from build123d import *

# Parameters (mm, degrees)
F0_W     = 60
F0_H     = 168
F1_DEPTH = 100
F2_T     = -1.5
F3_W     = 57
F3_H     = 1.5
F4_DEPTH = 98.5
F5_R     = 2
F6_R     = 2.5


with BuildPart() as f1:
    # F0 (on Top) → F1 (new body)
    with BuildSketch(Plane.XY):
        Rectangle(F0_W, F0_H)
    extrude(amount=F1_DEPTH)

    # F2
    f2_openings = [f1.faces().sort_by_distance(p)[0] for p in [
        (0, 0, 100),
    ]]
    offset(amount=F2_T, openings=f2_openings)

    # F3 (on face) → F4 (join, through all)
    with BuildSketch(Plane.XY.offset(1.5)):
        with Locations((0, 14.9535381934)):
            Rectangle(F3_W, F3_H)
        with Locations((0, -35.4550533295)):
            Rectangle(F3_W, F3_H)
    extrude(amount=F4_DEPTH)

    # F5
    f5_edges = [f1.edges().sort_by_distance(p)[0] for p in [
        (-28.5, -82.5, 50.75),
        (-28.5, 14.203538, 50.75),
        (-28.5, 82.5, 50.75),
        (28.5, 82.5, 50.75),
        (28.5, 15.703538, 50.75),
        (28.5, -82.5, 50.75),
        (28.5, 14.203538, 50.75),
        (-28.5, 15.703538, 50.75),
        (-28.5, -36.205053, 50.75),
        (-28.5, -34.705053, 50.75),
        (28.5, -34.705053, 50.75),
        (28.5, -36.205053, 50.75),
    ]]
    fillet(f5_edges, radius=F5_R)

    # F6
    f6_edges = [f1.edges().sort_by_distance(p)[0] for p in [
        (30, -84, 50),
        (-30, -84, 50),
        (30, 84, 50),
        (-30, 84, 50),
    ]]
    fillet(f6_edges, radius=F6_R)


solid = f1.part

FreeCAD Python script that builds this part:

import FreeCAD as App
import Part
import Sketcher

V = App.Vector


def edges_at(feature, points):
    """Names of the edges that pass closest to the given points."""
    edges = feature.Shape.Edges
    near = lambda p: min(range(len(edges)), key=lambda i: edges[i].distToShape(Part.Vertex(*p))[0])
    return sorted({f"Edge{near(p) + 1}" for p in points})


def faces_at(feature, points):
    """Names of the faces that lie closest to the given points."""
    faces = feature.Shape.Faces
    near = lambda p: min(range(len(faces)), key=lambda i: faces[i].distToShape(Part.Vertex(*p))[0])
    return sorted({f"Face{near(p) + 1}" for p in points})


def add_polygon(sketch, points):
    """Adds a closed chain of lines whose ends are joined by coincident constraints."""
    first, n = sketch.GeometryCount, len(points)
    for a, b in zip(points, points[1:] + points[:1]):
        sketch.addGeometry(Part.LineSegment(App.Vector(*a, 0), App.Vector(*b, 0)), False)
    for i in range(n):
        sketch.addConstraint(Sketcher.Constraint("Coincident", first + i, 2, first + (i + 1) % n, 1))

doc = App.newDocument("Part")
params = doc.addObject("Spreadsheet::Sheet", "Params")
for row, (alias, value) in enumerate([
    ("sketch1_width", "60 mm"),
    ("sketch1_height", "168 mm"),
    ("pad1_length", "100 mm"),
    ("thickness_wall", "1.5 mm"),
    ("sketch2_width", "57 mm"),
    ("sketch2_height", "1.5 mm"),
    ("pad2_length", "98.5 mm"),
    ("fillet_radius", "2 mm"),
    ("fillet2_radius", "2.5 mm"),
], start=1):
    params.set(f"A{row}", alias)
    params.set(f"B{row}", "=" + value)
    params.setAlias(f"B{row}", alias)

body = doc.addObject("PartDesign::Body", "Body")

sketch1 = body.newObject("Sketcher::SketchObject", "Sketch")
sketch1.AttachmentSupport = (doc.getObject("XY_Plane"), [""])
sketch1.MapMode = "FlatFace"
add_polygon(sketch1, [(-30, 84), (-30, -84), (30, -84), (30, 84)])
sketch1.addConstraint(Sketcher.Constraint("Vertical", 0))
sketch1.addConstraint(Sketcher.Constraint("Horizontal", 1))
sketch1.addConstraint(Sketcher.Constraint("Vertical", 2))
sketch1.addConstraint(Sketcher.Constraint("Horizontal", 3))
sketch1.addConstraint(Sketcher.Constraint("Symmetric", 0, 2, 2, 2, -1, 1))
sketch1.addConstraint(Sketcher.Constraint("DistanceX", 1, 1, 1, 2, 60.0))
sketch1.addConstraint(Sketcher.Constraint("DistanceY", 0, 2, 0, 1, 168.0))
sketch1.setExpression("Constraints[9]", "Params.sketch1_width")
sketch1.setExpression("Constraints[10]", "Params.sketch1_height")
pad1 = body.newObject("PartDesign::Pad", "Pad")
pad1.Profile = sketch1
pad1.setExpression("Length", "Params.pad1_length")
doc.recompute()

thickness = body.newObject("PartDesign::Thickness", "Thickness")
thickness.Base = (pad1, faces_at(pad1, [(0, 0, 100)]))
thickness.setExpression("Value", "Params.thickness_wall")
thickness.Reversed = True
thickness.Join = "Arc"

sketch2 = body.newObject("Sketcher::SketchObject", "Sketch001")
sketch2.AttachmentSupport = (doc.getObject("XY_Plane"), [""])
sketch2.MapMode = "FlatFace"
sketch2.AttachmentOffset = App.Placement(V(0, 0, 1.5), App.Rotation())
add_polygon(sketch2, [(-28.5, 15.7), (-28.5, 14.2), (28.5, 14.2), (28.5, 15.7)])
add_polygon(sketch2, [(-28.5, -34.7), (-28.5, -36.2), (28.5, -36.2), (28.5, -34.7)])
sketch2.addConstraint(Sketcher.Constraint("Vertical", 0))
sketch2.addConstraint(Sketcher.Constraint("Horizontal", 1))
sketch2.addConstraint(Sketcher.Constraint("Vertical", 2))
sketch2.addConstraint(Sketcher.Constraint("Horizontal", 3))
sketch2.addConstraint(Sketcher.Constraint("Vertical", 4))
sketch2.addConstraint(Sketcher.Constraint("Horizontal", 5))
sketch2.addConstraint(Sketcher.Constraint("Vertical", 6))
sketch2.addConstraint(Sketcher.Constraint("Horizontal", 7))
sketch2.addConstraint(Sketcher.Constraint("Vertical", 3, 2, 4, 2))
sketch2.addConstraint(Sketcher.Constraint("Vertical", 2, 2, 5, 2))
sketch2.addConstraint(Sketcher.Constraint("Equal", 2, 4))
sketch2.addConstraint(Sketcher.Constraint("DistanceX", 1, 1, 1, 2, 57.0))
sketch2.addConstraint(Sketcher.Constraint("DistanceY", 0, 2, 0, 1, 1.5))
sketch2.addConstraint(Sketcher.Constraint("DistanceX", 0, 2, -1, 1, 28.5))
sketch2.addConstraint(Sketcher.Constraint("DistanceY", -1, 1, 0, 2, 14.203538))
sketch2.addConstraint(Sketcher.Constraint("DistanceY", 4, 2, 0, 2, 50.408592))
sketch2.setExpression("Constraints[19]", "Params.sketch2_width")
sketch2.setExpression("Constraints[20]", "Params.sketch2_height")
pad2 = body.newObject("PartDesign::Pad", "Pad001")
pad2.Profile = sketch2
pad2.setExpression("Length", "Params.pad2_length")
doc.recompute()

fillet = body.newObject("PartDesign::Fillet", "Fillet")
fillet.Base = (pad2, edges_at(pad2, [
    (-28.5, -82.5, 50.75),
    (-28.5, 14.204, 50.75),
    (-28.5, 82.5, 50.75),
    (28.5, 82.5, 50.75),
    (28.5, 15.704, 50.75),
    (28.5, -82.5, 50.75),
    (28.5, 14.204, 50.75),
    (-28.5, 15.704, 50.75),
    (-28.5, -36.205, 50.75),
    (-28.5, -34.705, 50.75),
    (28.5, -34.705, 50.75),
    (28.5, -36.205, 50.75),
]))
fillet.setExpression("Radius", "Params.fillet_radius")
doc.recompute()

fillet2 = body.newObject("PartDesign::Fillet", "Fillet001")
fillet2.Base = (fillet, edges_at(fillet, [
    (30, -84, 50),
    (-30, -84, 50),
    (30, 84, 50),
    (-30, 84, 50),
]))
fillet2.setExpression("Radius", "Params.fillet2_radius")

doc.recompute()
